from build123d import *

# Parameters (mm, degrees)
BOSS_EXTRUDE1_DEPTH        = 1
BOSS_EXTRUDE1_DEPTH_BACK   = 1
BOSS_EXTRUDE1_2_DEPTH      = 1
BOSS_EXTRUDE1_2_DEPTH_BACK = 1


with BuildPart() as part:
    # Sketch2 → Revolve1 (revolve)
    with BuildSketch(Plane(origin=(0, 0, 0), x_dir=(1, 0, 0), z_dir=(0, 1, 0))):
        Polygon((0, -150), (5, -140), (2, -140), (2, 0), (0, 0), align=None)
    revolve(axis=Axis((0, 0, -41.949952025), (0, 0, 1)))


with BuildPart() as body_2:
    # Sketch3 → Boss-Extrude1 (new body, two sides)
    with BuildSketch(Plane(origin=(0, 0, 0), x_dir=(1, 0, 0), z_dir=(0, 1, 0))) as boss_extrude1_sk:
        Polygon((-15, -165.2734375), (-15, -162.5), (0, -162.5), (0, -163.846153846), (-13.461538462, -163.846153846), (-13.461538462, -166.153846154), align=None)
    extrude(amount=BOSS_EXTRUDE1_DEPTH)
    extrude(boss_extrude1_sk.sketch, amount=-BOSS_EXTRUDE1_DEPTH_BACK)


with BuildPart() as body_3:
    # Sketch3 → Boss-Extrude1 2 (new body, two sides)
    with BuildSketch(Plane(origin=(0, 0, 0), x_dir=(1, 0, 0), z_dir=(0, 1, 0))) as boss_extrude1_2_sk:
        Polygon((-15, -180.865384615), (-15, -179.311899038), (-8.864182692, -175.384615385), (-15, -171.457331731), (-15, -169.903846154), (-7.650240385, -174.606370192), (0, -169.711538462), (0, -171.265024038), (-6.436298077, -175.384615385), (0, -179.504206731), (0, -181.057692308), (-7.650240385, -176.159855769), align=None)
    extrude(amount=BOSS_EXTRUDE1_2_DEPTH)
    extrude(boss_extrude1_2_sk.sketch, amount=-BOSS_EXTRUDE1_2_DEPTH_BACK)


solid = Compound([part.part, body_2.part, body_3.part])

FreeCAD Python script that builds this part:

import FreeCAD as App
import Part
import Sketcher
Q = App.Units.Quantity

doc = App.newDocument("Part")
body = doc.addObject("PartDesign::Body", "Body")

sketch1 = body.newObject("Sketcher::SketchObject", "Sketch")
sketch1.AttachmentSupport = (doc.getObject("XZ_Plane"), [""])
sketch1.MapMode = "FlatFace"
sketch1.addGeometry(Part.LineSegment(App.Vector(0, 150, 0), App.Vector(5, 140, 0)), False)
sketch1.addGeometry(Part.LineSegment(App.Vector(5, 140, 0), App.Vector(2, 140, 0)), False)
sketch1.addGeometry(Part.LineSegment(App.Vector(2, 140, 0), App.Vector(2, 0, 0)), False)
sketch1.addGeometry(Part.LineSegment(App.Vector(2, 0, 0), App.Vector(0, 0, 0)), False)
sketch1.addGeometry(Part.LineSegment(App.Vector(0, 0, 0), App.Vector(0, 150, 0)), False)
sketch1.addConstraint(Sketcher.Constraint("Coincident", 0, 2, 1, 1))
sketch1.addConstraint(Sketcher.Constraint("Coincident", 1, 2, 2, 1))
sketch1.addConstraint(Sketcher.Constraint("Coincident", 2, 2, 3, 1))
sketch1.addConstraint(Sketcher.Constraint("Coincident", 3, 2, 4, 1))
sketch1.addConstraint(Sketcher.Constraint("Coincident", 4, 2, 0, 1))
sketch1.addConstraint(Sketcher.Constraint("Horizontal", 1))
sketch1.addConstraint(Sketcher.Constraint("Vertical", 2))
sketch1.addConstraint(Sketcher.Constraint("Horizontal", 3))
sketch1.addConstraint(Sketcher.Constraint("Vertical", 4))
sketch1.addConstraint(Sketcher.Constraint("Coincident", 3, 2, -1, 1))
sketch1.addConstraint(Sketcher.Constraint("DistanceX", 1, 2, 1, 1, Q("3 mm")))
sketch1.addConstraint(Sketcher.Constraint("DistanceX", 3, 2, 3, 1, Q("2 mm")))
sketch1.addConstraint(Sketcher.Constraint("DistanceY", 2, 2, 2, 1, Q("140 mm")))
sketch1.addConstraint(Sketcher.Constraint("DistanceY", 4, 1, 4, 2, Q("150 mm")))
revolution = body.newObject("PartDesign::Revolution", "Revolution")
revolution.Profile = sketch1
revolution.ReferenceAxis = (sketch1, ["V_Axis"])
revolution.Angle = 360
body2 = doc.addObject("PartDesign::Body", "Body001")

sketch2 = body2.newObject("Sketcher::SketchObject", "Sketch001")
sketch2.AttachmentSupport = (doc.getObject("XZ_Plane001"), [""])
sketch2.MapMode = "FlatFace"
sketch2.addGeometry(Part.LineSegment(App.Vector(-15, 162.5, 0), App.Vector(-15, 165.3, 0)), False)
sketch2.addGeometry(Part.LineSegment(App.Vector(-15, 165.3, 0), App.Vector(-13.5, 166.2, 0)), False)
sketch2.addGeometry(Part.LineSegment(App.Vector(-13.5, 166.2, 0), App.Vector(-13.5, 163.8, 0)), False)
sketch2.addGeometry(Part.LineSegment(App.Vector(-13.5, 163.8, 0), App.Vector(0, 163.8, 0)), False)
sketch2.addGeometry(Part.LineSegment(App.Vector(0, 163.8, 0), App.Vector(0, 162.5, 0)), False)
sketch2.addGeometry(Part.LineSegment(App.Vector(0, 162.5, 0), App.Vector(-15, 162.5, 0)), False)
sketch2.addConstraint(Sketcher.Constraint("Coincident", 0, 2, 1, 1))
sketch2.addConstraint(Sketcher.Constraint("Coincident", 1, 2, 2, 1))
sketch2.addConstraint(Sketcher.Constraint("Coincident", 2, 2, 3, 1))
sketch2.addConstraint(Sketcher.Constraint("Coincident", 3, 2, 4, 1))
sketch2.addConstraint(Sketcher.Constraint("Coincident", 4, 2, 5, 1))
sketch2.addConstraint(Sketcher.Constraint("Coincident", 5, 2, 0, 1))
sketch2.addConstraint(Sketcher.Constraint("Vertical", 0))
sketch2.addConstraint(Sketcher.Constraint("Vertical", 2))
sketch2.addConstraint(Sketcher.Constraint("Horizontal", 3))
sketch2.addConstraint(Sketcher.Constraint("Vertical", 4))
sketch2.addConstraint(Sketcher.Constraint("Horizontal", 5))
sketch2.addConstraint(Sketcher.Constraint("PointOnObject", 3, 2, -2))
sketch2.addConstraint(Sketcher.Constraint("DistanceX", 5, 2, 5, 1, Q("15 mm")))
sketch2.addConstraint(Sketcher.Constraint("DistanceY", -1, 1, 4, 2, Q("162.5 mm")))
sketch2.addConstraint(Sketcher.Constraint("DistanceX", 3, 1, 3, 2, Q("13.461538 mm")))
sketch2.addConstraint(Sketcher.Constraint("DistanceY", 0, 1, 0, 2, Q("2.773438 mm")))
sketch2.addConstraint(Sketcher.Constraint("DistanceY", 2, 2, 2, 1, Q("2.307692 mm")))
sketch2.addConstraint(Sketcher.Constraint("DistanceY", 4, 2, 4, 1, Q("1.346154 mm")))
pad1 = body2.newObject("PartDesign::Pad", "Pad")
pad1.Profile = sketch2
pad1.Type = "TwoLengths"
pad1.Length = 1
pad1.Length2 = 1
pad1.Reversed = True
body3 = doc.addObject("PartDesign::Body", "Body002")

sketch3 = body3.newObject("Sketcher::SketchObject", "Sketch002")
sketch3.AttachmentSupport = (doc.getObject("XZ_Plane002"), [""])
sketch3.MapMode = "FlatFace"
sketch3.addGeometry(Part.LineSegment(App.Vector(-15, 179.311899, 0), App.Vector(-15, 180.865385, 0)), False)
sketch3.addGeometry(Part.LineSegment(App.Vector(-15, 180.865385, 0), App.Vector(-7.65024, 176.159856, 0)), False)
sketch3.addGeometry(Part.LineSegment(App.Vector(-7.65024, 176.159856, 0), App.Vector(0, 181.057692, 0)), False)
sketch3.addGeometry(Part.LineSegment(App.Vector(0, 181.057692, 0), App.Vector(0, 179.504207, 0)), False)
sketch3.addGeometry(Part.LineSegment(App.Vector(0, 179.504207, 0), App.Vector(-6.436298, 175.384615, 0)), False)
sketch3.addGeometry(Part.LineSegment(App.Vector(-6.436298, 175.384615, 0), App.Vector(0, 171.265024, 0)), False)
sketch3.addGeometry(Part.LineSegment(App.Vector(0, 171.265024, 0), App.Vector(0, 169.711538, 0)), False)
sketch3.addGeometry(Part.LineSegment(App.Vector(0, 169.711538, 0), App.Vector(-7.65024, 174.60637, 0)), False)
sketch3.addGeometry(Part.LineSegment(App.Vector(-7.65024, 174.60637, 0), App.Vector(-15, 169.903846, 0)), False)
sketch3.addGeometry(Part.LineSegment(App.Vector(-15, 169.903846, 0), App.Vector(-15, 171.457332, 0)), False)
sketch3.addGeometry(Part.LineSegment(App.Vector(-15, 171.457332, 0), App.Vector(-8.864183, 175.384615, 0)), False)
sketch3.addGeometry(Part.LineSegment(App.Vector(-8.864183, 175.384615, 0), App.Vector(-15, 179.311899, 0)), False)
sketch3.addConstraint(Sketcher.Constraint("Coincident", 0, 2, 1, 1))
sketch3.addConstraint(Sketcher.Constraint("Coincident", 1, 2, 2, 1))
sketch3.addConstraint(Sketcher.Constraint("Coincident", 2, 2, 3, 1))
sketch3.addConstraint(Sketcher.Constraint("Coincident", 3, 2, 4, 1))
sketch3.addConstraint(Sketcher.Constraint("Coincident", 4, 2, 5, 1))
sketch3.addConstraint(Sketcher.Constraint("Coincident", 5, 2, 6, 1))
sketch3.addConstraint(Sketcher.Constraint("Coincident", 6, 2, 7, 1))
sketch3.addConstraint(Sketcher.Constraint("Coincident", 7, 2, 8, 1))
sketch3.addConstraint(Sketcher.Constraint("Coincident", 8, 2, 9, 1))
sketch3.addConstraint(Sketcher.Constraint("Coincident", 9, 2, 10, 1))
sketch3.addConstraint(Sketcher.Constraint("Coincident", 10, 2, 11, 1))
sketch3.addConstraint(Sketcher.Constraint("Coincident", 11, 2, 0, 1))
sketch3.addConstraint(Sketcher.Constraint("Vertical", 0))
sketch3.addConstraint(Sketcher.Constraint("Vertical", 3))
sketch3.addConstraint(Sketcher.Constraint("Vertical", 6))
sketch3.addConstraint(Sketcher.Constraint("Vertical", 9))
sketch3.addConstraint(Sketcher.Constraint("PointOnObject", 2, 2, -2))
sketch3.addConstraint(Sketcher.Constraint("PointOnObject", 5, 2, -2))
sketch3.addConstraint(Sketcher.Constraint("DistanceX", 0, 2, -1, 1, Q("15 mm")))
sketch3.addConstraint(Sketcher.Constraint("DistanceX", 8, 2, -1, 1, Q("15 mm")))
sketch3.addConstraint(Sketcher.Constraint("DistanceX", 4, 2, -1, 1, Q("6.436298 mm")))
sketch3.addConstraint(Sketcher.Constraint("DistanceY", -1, 1, 11, 2, Q("179.311899 mm")))
sketch3.addConstraint(Sketcher.Constraint("Distance", 4, Q("7.641791 mm")))
sketch3.addConstraint(Sketcher.Constraint("Distance", 5, Q("7.641791 mm")))
sketch3.addConstraint(Sketcher.Constraint("Distance", 10, Q("7.28504 mm")))
sketch3.addConstraint(Sketcher.Constraint("Distance", 11, Q("7.28504 mm")))
sketch3.addConstraint(Sketcher.Constraint("DistanceY", 0, 1, 0, 2, Q("1.553486 mm")))
sketch3.addConstraint(Sketcher.Constraint("DistanceY", 3, 2, 3, 1, Q("1.553486 mm")))
sketch3.addConstraint(Sketcher.Constraint("DistanceY", 6, 2, 6, 1, Q("1.553486 mm")))
sketch3.addConstraint(Sketcher.Constraint("DistanceY", 9, 1, 9, 2, Q("1.553486 mm")))
sketch3.addConstraint(Sketcher.Constraint("DistanceX", 1, 2, -1, 1, Q("7.65024 mm")))
sketch3.addConstraint(Sketcher.Constraint("DistanceY", -1, 1, 6, 2, Q("169.711538 mm")))
sketch3.addConstraint(Sketcher.Constraint("DistanceX", 7, 2, -1, 1, Q("7.65024 mm")))
sketch3.addConstraint(Sketcher.Constraint("DistanceY", -1, 1, 7, 2, Q("174.60637 mm")))
sketch3.addConstraint(Sketcher.Constraint("DistanceY", -1, 1, 9, 2, Q("171.457332 mm")))
sketch3.addConstraint(Sketcher.Constraint("DistanceY", 1, 2, 0, 2, Q("4.705529 mm")))
pad2 = body3.newObject("PartDesign::Pad", "Pad001")
pad2.Profile = sketch3
pad2.Type = "TwoLengths"
pad2.Length = 1
pad2.Length2 = 1
pad2.Reversed = True

doc.recompute()
